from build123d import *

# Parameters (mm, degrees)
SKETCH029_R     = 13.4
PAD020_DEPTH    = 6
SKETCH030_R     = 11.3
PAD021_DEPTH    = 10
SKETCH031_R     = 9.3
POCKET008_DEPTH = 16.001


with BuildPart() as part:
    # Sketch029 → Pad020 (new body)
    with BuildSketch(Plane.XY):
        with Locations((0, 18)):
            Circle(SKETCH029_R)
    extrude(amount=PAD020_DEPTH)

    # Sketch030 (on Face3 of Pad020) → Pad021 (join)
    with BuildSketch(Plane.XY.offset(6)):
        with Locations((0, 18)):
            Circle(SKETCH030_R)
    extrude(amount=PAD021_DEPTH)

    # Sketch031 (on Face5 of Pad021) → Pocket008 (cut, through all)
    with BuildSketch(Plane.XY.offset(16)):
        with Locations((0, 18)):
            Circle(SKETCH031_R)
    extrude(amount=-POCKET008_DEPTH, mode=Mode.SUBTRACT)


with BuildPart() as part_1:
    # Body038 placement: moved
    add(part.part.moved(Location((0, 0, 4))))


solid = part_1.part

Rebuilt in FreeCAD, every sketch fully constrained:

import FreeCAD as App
import Part
import Sketcher
from FreeCAD import Vector
Q = App.Units.Quantity

doc = App.newDocument("Part")
body = doc.addObject("PartDesign::Body", "Body")

# Sketch on XY plane
sketch1 = doc.addObject("Sketcher::SketchObject", "Sketch")
body.addObject(sketch1)
sketch1.AttachmentSupport = (doc.XY_Plane, [""])
sketch1.MapMode = "FlatFace"
sketch1.addGeometry(Part.Circle(Vector(0, 18, 0), Vector(0, 0, 1), 13), False)
sketch1.addConstraint(Sketcher.Constraint("PointOnObject", 0, 3, -2))
sketch1.addConstraint(Sketcher.Constraint("Diameter", 0, Q("26.8 mm")))
sketch1.addConstraint(Sketcher.Constraint("DistanceY", -1, 1, 0, 3, Q("18 mm")))
pad1 = doc.addObject("PartDesign::Pad", "Pad")
body.addObject(pad1)
pad1.Profile = sketch1
pad1.Length = 6

# Sketch on XY plane
sketch2 = doc.addObject("Sketcher::SketchObject", "Sketch001")
body.addObject(sketch2)
sketch2.AttachmentSupport = (doc.XY_Plane, [""])
sketch2.MapMode = "FlatFace"
sketch2.AttachmentOffset = App.Placement(Vector(0, 0, 6), App.Rotation())
sketch2.addGeometry(Part.Circle(Vector(0, 18, 0), Vector(0, 0, 1), 11), False)
sketch2.addConstraint(Sketcher.Constraint("PointOnObject", 0, 3, -2))
sketch2.addConstraint(Sketcher.Constraint("Diameter", 0, Q("22.6 mm")))
sketch2.addConstraint(Sketcher.Constraint("DistanceY", -1, 1, 0, 3, Q("18 mm")))
pad2 = doc.addObject("PartDesign::Pad", "Pad001")
body.addObject(pad2)
pad2.Profile = sketch2
pad2.Length = 10

# Sketch on XY plane
sketch3 = doc.addObject("Sketcher::SketchObject", "Sketch002")
body.addObject(sketch3)
sketch3.AttachmentSupport = (doc.XY_Plane, [""])
sketch3.MapMode = "FlatFace"
sketch3.AttachmentOffset = App.Placement(Vector(0, 0, 16), App.Rotation())
sketch3.addGeometry(Part.Circle(Vector(0, 18, 0), Vector(0, 0, 1), 9), False)
sketch3.addConstraint(Sketcher.Constraint("PointOnObject", 0, 3, -2))
sketch3.addConstraint(Sketcher.Constraint("Diameter", 0, Q("18.6 mm")))
sketch3.addConstraint(Sketcher.Constraint("DistanceY", -1, 1, 0, 3, Q("18 mm")))
pocket1 = doc.addObject("PartDesign::Pocket", "Pocket")
body.addObject(pocket1)
pocket1.Profile = sketch3
pocket1.Type = "ThroughAll"
body2 = doc.addObject("PartDesign::Body", "Body001")
doc.recompute()

body.Placement = App.Placement(Vector(0, 0, 4), App.Rotation(Vector(0, 0, 1), 0))
boolean = doc.addObject("PartDesign::Boolean", "Boolean")
body2.addObject(boolean)
boolean.Type = "Fuse"
boolean.addObjects([body])

doc.recompute()
